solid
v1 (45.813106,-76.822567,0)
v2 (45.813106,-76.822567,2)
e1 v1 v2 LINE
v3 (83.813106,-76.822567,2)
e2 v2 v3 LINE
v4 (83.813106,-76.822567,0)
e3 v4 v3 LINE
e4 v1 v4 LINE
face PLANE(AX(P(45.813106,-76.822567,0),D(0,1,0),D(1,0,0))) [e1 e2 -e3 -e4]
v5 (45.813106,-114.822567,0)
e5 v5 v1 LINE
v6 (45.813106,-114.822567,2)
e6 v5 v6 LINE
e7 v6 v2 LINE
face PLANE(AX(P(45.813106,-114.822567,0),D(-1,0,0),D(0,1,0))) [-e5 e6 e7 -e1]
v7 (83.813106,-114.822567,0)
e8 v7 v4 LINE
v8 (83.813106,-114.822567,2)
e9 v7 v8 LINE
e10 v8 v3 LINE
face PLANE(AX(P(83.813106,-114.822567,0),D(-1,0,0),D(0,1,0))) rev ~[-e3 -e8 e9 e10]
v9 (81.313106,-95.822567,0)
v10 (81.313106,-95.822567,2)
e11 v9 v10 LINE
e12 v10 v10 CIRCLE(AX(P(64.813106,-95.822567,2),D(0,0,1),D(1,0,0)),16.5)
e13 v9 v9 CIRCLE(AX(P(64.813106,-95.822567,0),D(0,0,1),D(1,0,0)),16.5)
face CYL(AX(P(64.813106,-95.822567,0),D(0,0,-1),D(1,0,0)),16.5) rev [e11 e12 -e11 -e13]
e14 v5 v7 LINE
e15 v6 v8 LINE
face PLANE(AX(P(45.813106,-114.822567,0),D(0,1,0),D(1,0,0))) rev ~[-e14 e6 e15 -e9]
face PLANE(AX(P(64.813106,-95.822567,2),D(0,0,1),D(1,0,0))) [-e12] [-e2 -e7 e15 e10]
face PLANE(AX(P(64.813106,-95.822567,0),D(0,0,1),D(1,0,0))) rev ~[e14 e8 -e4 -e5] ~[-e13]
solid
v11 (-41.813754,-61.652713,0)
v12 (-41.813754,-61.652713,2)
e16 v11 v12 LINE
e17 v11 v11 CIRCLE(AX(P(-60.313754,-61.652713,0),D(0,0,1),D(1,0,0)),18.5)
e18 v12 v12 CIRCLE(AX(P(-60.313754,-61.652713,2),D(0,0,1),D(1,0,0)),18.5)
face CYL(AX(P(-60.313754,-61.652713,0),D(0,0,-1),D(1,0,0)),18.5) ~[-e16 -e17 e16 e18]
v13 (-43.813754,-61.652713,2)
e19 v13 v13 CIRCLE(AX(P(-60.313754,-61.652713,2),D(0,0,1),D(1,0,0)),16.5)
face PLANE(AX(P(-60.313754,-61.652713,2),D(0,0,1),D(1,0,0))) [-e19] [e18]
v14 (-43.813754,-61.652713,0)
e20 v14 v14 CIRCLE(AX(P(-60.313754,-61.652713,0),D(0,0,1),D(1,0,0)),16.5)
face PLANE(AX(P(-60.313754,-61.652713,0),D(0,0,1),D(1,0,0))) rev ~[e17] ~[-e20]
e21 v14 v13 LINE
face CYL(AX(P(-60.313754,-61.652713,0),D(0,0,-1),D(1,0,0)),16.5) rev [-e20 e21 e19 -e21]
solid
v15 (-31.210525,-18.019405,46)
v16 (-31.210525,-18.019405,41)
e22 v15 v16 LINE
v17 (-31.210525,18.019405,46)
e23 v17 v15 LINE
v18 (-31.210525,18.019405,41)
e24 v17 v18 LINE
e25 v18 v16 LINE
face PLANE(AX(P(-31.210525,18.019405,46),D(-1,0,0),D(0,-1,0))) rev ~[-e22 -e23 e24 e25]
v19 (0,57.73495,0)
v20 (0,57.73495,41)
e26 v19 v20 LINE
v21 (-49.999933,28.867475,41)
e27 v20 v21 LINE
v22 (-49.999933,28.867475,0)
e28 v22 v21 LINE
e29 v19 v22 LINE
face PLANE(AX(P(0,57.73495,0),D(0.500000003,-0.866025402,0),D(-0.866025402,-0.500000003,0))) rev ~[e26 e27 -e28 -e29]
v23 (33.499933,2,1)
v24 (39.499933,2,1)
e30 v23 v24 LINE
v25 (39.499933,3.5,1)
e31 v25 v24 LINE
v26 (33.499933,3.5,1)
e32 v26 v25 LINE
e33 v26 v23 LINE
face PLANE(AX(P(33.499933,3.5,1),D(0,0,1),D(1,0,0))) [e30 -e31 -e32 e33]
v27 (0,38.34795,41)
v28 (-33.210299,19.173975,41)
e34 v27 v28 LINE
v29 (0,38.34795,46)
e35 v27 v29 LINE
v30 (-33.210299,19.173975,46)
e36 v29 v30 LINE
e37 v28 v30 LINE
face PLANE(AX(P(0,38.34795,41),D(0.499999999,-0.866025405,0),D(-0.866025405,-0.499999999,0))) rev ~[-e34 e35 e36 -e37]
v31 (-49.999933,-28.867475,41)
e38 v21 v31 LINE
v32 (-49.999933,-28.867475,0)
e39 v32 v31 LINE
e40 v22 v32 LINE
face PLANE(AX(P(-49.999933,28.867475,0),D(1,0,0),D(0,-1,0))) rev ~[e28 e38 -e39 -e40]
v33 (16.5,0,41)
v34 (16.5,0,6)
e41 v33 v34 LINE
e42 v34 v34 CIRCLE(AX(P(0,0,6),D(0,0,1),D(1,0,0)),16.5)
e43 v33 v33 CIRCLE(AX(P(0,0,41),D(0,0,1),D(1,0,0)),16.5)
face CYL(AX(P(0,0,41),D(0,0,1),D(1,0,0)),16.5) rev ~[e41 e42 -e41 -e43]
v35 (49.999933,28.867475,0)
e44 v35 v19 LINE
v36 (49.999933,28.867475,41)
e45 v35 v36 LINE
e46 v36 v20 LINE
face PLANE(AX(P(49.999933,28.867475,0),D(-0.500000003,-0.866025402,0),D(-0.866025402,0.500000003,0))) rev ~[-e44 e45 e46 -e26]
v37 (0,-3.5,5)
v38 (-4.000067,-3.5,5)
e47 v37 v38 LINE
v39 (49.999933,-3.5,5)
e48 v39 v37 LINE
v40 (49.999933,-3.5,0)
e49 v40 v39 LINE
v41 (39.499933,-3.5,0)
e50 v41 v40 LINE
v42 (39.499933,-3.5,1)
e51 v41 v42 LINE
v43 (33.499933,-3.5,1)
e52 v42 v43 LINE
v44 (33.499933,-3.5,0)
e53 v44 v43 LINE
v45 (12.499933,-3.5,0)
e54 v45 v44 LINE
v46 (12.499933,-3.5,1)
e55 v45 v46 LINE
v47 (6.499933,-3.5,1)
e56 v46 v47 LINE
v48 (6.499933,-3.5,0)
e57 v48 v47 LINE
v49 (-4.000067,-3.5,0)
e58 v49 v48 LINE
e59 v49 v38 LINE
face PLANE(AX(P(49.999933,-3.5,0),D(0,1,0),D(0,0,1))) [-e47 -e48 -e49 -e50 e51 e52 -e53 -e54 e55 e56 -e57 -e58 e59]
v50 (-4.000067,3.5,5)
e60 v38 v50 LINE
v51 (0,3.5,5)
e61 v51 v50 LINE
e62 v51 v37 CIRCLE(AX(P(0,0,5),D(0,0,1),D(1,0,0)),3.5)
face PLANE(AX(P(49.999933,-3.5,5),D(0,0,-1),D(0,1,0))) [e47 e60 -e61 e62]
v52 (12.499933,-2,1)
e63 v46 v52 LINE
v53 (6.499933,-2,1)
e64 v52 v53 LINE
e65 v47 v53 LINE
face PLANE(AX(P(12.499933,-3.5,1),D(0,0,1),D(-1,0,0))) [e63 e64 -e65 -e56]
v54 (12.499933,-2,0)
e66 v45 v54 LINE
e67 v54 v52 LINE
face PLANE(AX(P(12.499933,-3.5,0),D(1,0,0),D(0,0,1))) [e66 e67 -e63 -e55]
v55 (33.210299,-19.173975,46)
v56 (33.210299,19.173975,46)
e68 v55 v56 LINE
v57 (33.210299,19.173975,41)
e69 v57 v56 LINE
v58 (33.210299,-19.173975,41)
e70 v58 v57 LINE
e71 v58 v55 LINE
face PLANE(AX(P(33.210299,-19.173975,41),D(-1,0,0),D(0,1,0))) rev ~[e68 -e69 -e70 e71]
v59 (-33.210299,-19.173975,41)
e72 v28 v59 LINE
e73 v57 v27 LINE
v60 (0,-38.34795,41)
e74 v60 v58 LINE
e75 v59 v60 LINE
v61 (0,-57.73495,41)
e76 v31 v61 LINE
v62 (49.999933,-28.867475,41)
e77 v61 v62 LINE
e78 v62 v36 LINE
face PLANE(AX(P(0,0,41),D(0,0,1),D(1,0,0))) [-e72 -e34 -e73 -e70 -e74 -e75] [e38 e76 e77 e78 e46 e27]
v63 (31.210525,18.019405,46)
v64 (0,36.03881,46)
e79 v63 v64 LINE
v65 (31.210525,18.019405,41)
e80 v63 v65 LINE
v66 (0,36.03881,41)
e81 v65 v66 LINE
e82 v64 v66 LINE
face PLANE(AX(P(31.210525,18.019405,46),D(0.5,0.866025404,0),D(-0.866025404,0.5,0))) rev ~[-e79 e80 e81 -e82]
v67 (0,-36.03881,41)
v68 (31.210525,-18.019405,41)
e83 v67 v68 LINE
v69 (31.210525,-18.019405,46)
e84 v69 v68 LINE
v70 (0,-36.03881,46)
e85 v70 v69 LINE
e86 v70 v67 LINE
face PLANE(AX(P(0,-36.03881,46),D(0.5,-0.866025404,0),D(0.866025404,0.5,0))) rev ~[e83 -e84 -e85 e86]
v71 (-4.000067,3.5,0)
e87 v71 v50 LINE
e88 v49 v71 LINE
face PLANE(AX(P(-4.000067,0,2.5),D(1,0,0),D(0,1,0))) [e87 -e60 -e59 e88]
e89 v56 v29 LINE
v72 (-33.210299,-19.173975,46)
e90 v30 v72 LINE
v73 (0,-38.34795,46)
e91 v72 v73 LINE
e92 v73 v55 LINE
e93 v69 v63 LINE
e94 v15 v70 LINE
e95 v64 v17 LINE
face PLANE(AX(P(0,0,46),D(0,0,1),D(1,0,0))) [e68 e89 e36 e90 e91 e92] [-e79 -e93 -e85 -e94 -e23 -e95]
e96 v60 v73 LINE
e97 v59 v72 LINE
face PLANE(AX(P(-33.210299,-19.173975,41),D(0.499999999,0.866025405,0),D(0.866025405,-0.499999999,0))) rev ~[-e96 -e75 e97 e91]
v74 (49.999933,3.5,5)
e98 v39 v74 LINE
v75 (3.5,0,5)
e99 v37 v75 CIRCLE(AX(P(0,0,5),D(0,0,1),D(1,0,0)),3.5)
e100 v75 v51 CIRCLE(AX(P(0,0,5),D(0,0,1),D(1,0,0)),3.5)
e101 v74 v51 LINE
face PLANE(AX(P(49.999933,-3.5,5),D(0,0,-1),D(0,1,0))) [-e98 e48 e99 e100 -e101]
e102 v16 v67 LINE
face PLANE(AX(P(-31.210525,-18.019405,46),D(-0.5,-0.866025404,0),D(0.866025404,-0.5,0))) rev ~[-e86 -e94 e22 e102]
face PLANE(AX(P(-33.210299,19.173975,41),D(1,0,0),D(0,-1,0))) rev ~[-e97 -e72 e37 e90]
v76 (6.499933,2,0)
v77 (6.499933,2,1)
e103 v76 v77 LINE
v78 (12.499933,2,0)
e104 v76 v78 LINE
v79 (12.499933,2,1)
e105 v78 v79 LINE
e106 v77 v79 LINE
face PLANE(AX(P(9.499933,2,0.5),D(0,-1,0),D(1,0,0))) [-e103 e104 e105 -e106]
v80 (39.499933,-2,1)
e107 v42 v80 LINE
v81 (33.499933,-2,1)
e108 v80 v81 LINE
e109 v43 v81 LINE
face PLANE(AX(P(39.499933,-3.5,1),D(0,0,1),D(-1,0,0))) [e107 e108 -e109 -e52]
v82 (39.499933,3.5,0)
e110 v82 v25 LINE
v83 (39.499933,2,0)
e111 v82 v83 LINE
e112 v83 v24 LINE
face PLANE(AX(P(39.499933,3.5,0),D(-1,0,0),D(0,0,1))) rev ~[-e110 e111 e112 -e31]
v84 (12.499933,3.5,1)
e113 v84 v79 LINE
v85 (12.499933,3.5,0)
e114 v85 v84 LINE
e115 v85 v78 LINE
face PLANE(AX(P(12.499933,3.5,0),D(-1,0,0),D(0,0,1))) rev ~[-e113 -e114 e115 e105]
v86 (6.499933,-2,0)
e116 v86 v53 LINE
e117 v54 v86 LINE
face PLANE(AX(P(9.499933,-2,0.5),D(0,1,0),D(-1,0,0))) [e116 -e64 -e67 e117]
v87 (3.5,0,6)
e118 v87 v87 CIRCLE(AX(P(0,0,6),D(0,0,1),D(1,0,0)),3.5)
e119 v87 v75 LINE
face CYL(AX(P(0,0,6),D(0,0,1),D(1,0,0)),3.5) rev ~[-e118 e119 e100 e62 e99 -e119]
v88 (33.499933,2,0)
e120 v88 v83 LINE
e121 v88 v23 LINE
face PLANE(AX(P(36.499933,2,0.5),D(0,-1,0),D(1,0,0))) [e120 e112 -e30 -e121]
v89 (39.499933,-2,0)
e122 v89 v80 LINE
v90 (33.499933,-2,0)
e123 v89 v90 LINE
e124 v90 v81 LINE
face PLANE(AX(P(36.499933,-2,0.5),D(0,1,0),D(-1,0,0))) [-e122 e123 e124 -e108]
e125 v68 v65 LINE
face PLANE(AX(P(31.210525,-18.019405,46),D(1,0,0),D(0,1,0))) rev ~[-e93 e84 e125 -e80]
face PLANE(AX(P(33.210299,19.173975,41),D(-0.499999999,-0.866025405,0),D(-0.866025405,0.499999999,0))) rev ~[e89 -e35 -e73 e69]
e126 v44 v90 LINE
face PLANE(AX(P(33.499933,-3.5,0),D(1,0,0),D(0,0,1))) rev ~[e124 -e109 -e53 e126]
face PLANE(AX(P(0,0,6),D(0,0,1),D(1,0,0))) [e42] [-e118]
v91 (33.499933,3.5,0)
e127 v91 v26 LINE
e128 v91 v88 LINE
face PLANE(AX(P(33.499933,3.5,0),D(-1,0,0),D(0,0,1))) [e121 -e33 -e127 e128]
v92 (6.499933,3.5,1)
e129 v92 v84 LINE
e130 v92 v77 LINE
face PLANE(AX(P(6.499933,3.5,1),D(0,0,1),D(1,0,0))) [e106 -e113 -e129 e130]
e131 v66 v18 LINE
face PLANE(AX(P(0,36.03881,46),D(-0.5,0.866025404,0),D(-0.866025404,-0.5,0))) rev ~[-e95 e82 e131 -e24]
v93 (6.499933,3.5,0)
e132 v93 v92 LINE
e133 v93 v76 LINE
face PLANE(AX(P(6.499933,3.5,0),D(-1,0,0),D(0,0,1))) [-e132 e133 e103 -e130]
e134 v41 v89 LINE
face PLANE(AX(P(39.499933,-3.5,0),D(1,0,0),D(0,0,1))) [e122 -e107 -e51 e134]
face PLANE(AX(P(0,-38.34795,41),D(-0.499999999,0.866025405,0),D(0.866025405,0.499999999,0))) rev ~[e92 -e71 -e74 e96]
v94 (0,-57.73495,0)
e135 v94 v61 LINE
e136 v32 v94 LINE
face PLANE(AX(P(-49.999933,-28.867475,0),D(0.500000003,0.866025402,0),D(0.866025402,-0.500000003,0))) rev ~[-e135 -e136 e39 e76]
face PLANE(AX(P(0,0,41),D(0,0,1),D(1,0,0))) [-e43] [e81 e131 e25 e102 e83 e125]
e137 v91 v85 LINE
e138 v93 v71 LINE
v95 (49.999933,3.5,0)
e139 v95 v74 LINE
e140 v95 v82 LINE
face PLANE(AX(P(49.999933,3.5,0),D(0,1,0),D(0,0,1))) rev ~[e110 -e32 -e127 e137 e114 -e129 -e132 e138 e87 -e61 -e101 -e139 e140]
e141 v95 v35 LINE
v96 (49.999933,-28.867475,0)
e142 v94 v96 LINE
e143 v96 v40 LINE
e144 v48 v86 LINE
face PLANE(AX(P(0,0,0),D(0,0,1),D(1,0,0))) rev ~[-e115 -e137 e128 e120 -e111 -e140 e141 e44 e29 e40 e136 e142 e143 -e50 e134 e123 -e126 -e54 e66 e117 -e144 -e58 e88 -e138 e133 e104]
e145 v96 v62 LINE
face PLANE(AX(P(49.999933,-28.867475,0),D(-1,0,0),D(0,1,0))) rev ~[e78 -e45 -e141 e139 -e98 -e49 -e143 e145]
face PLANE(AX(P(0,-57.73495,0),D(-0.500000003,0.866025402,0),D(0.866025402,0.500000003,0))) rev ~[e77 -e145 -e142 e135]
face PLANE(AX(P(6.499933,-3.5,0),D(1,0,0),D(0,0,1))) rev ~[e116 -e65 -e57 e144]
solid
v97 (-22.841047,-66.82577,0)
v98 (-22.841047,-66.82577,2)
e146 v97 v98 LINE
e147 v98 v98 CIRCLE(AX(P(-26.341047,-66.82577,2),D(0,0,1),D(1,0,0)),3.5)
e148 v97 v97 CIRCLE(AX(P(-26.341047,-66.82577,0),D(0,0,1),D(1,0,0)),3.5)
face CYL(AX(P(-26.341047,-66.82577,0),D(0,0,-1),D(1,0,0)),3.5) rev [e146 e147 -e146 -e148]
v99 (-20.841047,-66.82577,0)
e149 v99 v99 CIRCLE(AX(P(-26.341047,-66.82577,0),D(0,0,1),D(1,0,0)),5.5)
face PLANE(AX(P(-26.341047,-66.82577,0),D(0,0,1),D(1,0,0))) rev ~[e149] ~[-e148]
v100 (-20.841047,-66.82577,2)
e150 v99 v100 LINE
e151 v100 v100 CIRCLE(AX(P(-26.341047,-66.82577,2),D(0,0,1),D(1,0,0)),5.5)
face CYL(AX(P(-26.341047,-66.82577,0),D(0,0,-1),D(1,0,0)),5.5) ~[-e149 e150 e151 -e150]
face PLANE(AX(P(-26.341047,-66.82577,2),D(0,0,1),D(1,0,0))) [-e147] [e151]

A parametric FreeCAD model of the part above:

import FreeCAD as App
import Part
import Sketcher

V = App.Vector
Q = App.Units.Quantity


def add_polygon(sketch, points):
    """Adds a closed chain of lines whose ends are joined by coincident constraints."""
    first, n = sketch.GeometryCount, len(points)
    for a, b in zip(points, points[1:] + points[:1]):
        sketch.addGeometry(Part.LineSegment(App.Vector(*a, 0), App.Vector(*b, 0)), False)
    for i in range(n):
        sketch.addConstraint(Sketcher.Constraint("Coincident", first + i, 2, first + (i + 1) % n, 1))

doc = App.newDocument("Part")
body = doc.addObject("PartDesign::Body", "Body")

# Sketch on XY plane
sketch1 = body.newObject("Sketcher::SketchObject", "Sketch")
sketch1.AttachmentSupport = (doc.getObject("XY_Plane"), [""])
sketch1.MapMode = "FlatFace"
add_polygon(sketch1, [(50, 29), (0, 58), (-50, 29), (-50, -29), (0, -58), (50, -29)])  # lines 0-5
sketch1.addConstraint(Sketcher.Constraint("Vertical", 2))
sketch1.addConstraint(Sketcher.Constraint("Vertical", 5))
sketch1.addConstraint(Sketcher.Constraint("Symmetric", 0, 2, 3, 2, -1, 1))
sketch1.addConstraint(Sketcher.Constraint("Symmetric", 1, 2, 4, 2, -1, 1))
sketch1.addConstraint(Sketcher.Constraint("PointOnObject", 0, 2, -2))
sketch1.addConstraint(Sketcher.Constraint("Parallel", 0, 3))
sketch1.addConstraint(Sketcher.Constraint("Horizontal", 2, 2, 4, 2))
sketch1.addConstraint(Sketcher.Constraint("Angle", 0, Q("150 deg")))
sketch1.addConstraint(Sketcher.Constraint("DistanceY", 2, 2, 2, 1, 57.73495))
sketch1.addConstraint(Sketcher.Constraint("DistanceY", 3, 2, 0, 2, 115.4699))
pad1 = body.newObject("PartDesign::Pad", "Pad")
pad1.Profile = sketch1
pad1.Length = 41

# Sketch on XY plane
sketch2 = body.newObject("Sketcher::SketchObject", "Sketch001")
sketch2.AttachmentSupport = (doc.getObject("XY_Plane"), [""])
sketch2.MapMode = "FlatFace"
sketch2.AttachmentOffset = App.Placement(V(0, 0, 41), App.Rotation())
add_polygon(sketch2, [(33, 19), (0, 38), (-33, 19), (-33, -19), (0, -38), (33, -19)])  # lines 0-5
sketch2.addConstraint(Sketcher.Constraint("Vertical", 2))
sketch2.addConstraint(Sketcher.Constraint("Vertical", 5))
sketch2.addConstraint(Sketcher.Constraint("Symmetric", 0, 2, 3, 2, -1, 1))
sketch2.addConstraint(Sketcher.Constraint("Symmetric", 1, 2, 4, 2, -1, 1))
sketch2.addConstraint(Sketcher.Constraint("PointOnObject", 0, 2, -2))
sketch2.addConstraint(Sketcher.Constraint("Parallel", 0, 3))
sketch2.addConstraint(Sketcher.Constraint("Horizontal", 2, 2, 4, 2))
sketch2.addConstraint(Sketcher.Constraint("Angle", 0, Q("150 deg")))
sketch2.addConstraint(Sketcher.Constraint("DistanceY", 2, 2, 2, 1, 38.34795))
sketch2.addConstraint(Sketcher.Constraint("DistanceX", 1, 2, -1, 1, 33.210299))
pad2 = body.newObject("PartDesign::Pad", "Pad001")
pad2.Profile = sketch2
pad2.Length = 5

# Sketch on XY plane
sketch3 = body.newObject("Sketcher::SketchObject", "Sketch002")
sketch3.AttachmentSupport = (doc.getObject("XY_Plane"), [""])
sketch3.MapMode = "FlatFace"
sketch3.AttachmentOffset = App.Placement(V(0, 0, 46), App.Rotation())
add_polygon(sketch3, [(31, 18), (0, 36), (-31, 18), (-31, -18), (0, -36), (31, -18)])  # lines 0-5
sketch3.addConstraint(Sketcher.Constraint("Vertical", 2))
sketch3.addConstraint(Sketcher.Constraint("Vertical", 5))
sketch3.addConstraint(Sketcher.Constraint("Symmetric", 0, 2, 3, 2, -1, 1))
sketch3.addConstraint(Sketcher.Constraint("Symmetric", 1, 2, 4, 2, -1, 1))
sketch3.addConstraint(Sketcher.Constraint("PointOnObject", 0, 2, -2))
sketch3.addConstraint(Sketcher.Constraint("Parallel", 0, 3))
sketch3.addConstraint(Sketcher.Constraint("Horizontal", 2, 2, 4, 2))
sketch3.addConstraint(Sketcher.Constraint("Angle", 0, Q("150 deg")))
sketch3.addConstraint(Sketcher.Constraint("DistanceY", 2, 2, 2, 1, 36.03881))
sketch3.addConstraint(Sketcher.Constraint("Distance", 0, 36.03881))
pocket1 = body.newObject("PartDesign::Pocket", "Pocket")
pocket1.Profile = sketch3
pocket1.Length = 5

# Sketch on XY plane
sketch4 = body.newObject("Sketcher::SketchObject", "Sketch003")
sketch4.AttachmentSupport = (doc.getObject("XY_Plane"), [""])
sketch4.MapMode = "FlatFace"
sketch4.AttachmentOffset = App.Placement(V(0, 0, 41), App.Rotation())
sketch4.addGeometry(Part.Circle(V(0, 0, 0), V(0, 0, 1), 16), False)
sketch4.addConstraint(Sketcher.Constraint("Coincident", 0, 3, -1, 1))
sketch4.addConstraint(Sketcher.Constraint("Diameter", 0, 33.0))
pocket2 = body.newObject("PartDesign::Pocket", "Pocket001")
pocket2.Profile = sketch4
pocket2.Length = 35

# Sketch on XY plane
sketch5 = body.newObject("Sketcher::SketchObject", "Sketch004")
sketch5.AttachmentSupport = (doc.getObject("XY_Plane"), [""])
sketch5.MapMode = "FlatFace"
sketch5.AttachmentOffset = App.Placement(V(0, 0, 6), App.Rotation())
sketch5.addGeometry(Part.Circle(V(0, 0, 0), V(0, 0, 1), 3.5), False)
sketch5.addConstraint(Sketcher.Constraint("Coincident", 0, 3, -1, 1))
sketch5.addConstraint(Sketcher.Constraint("Diameter", 0, 7.0))
pocket3 = body.newObject("PartDesign::Pocket", "Pocket002")
pocket3.Profile = sketch5
pocket3.Length = 25

# Sketch on YZ plane
sketch6 = body.newObject("Sketcher::SketchObject", "Sketch005")
sketch6.AttachmentSupport = (doc.getObject("YZ_Plane"), [""])
sketch6.MapMode = "FlatFace"
sketch6.AttachmentOffset = App.Placement(V(0, 0, 49.999933), App.Rotation())
add_polygon(sketch6, [(-4, 5), (-4, 0), (4, 0), (4, 5)])  # lines 0-3
sketch6.addConstraint(Sketcher.Constraint("Vertical", 0))
sketch6.addConstraint(Sketcher.Constraint("Horizontal", 1))
sketch6.addConstraint(Sketcher.Constraint("Vertical", 2))
sketch6.addConstraint(Sketcher.Constraint("Horizontal", 3))
sketch6.addConstraint(Sketcher.Constraint("Symmetric", 0, 2, 1, 2, -1, 1))
sketch6.addConstraint(Sketcher.Constraint("DistanceX", 1, 1, 1, 2, 7.0))
sketch6.addConstraint(Sketcher.Constraint("DistanceY", 0, 2, 0, 1, 5.0))
pocket4 = body.newObject("PartDesign::Pocket", "Pocket003")
pocket4.Profile = sketch6
pocket4.Length = 54

# Sketch on XZ plane
sketch7 = body.newObject("Sketcher::SketchObject", "Sketch006")
sketch7.AttachmentSupport = (doc.getObject("XZ_Plane"), [""])
sketch7.MapMode = "FlatFace"
sketch7.AttachmentOffset = App.Placement(V(0, 0, 3.5), App.Rotation())
add_polygon(sketch7, [(12.5, 1), (12.5, 0), (6.5, 0), (6.5, 1)])  # lines 0-3
add_polygon(sketch7, [(39.5, 1), (39.5, 0), (33.5, 0), (33.5, 1)])  # lines 4-7
sketch7.addConstraint(Sketcher.Constraint("Vertical", 0))
sketch7.addConstraint(Sketcher.Constraint("Horizontal", 1))
sketch7.addConstraint(Sketcher.Constraint("Vertical", 2))
sketch7.addConstraint(Sketcher.Constraint("Horizontal", 3))
sketch7.addConstraint(Sketcher.Constraint("Vertical", 4))
sketch7.addConstraint(Sketcher.Constraint("Horizontal", 5))
sketch7.addConstraint(Sketcher.Constraint("Vertical", 6))
sketch7.addConstraint(Sketcher.Constraint("Horizontal", 7))
sketch7.addConstraint(Sketcher.Constraint("PointOnObject", 0, 2, -1))
sketch7.addConstraint(Sketcher.Constraint("PointOnObject", 4, 2, -1))
sketch7.addConstraint(Sketcher.Constraint("Horizontal", 3, 2, 6, 2))
sketch7.addConstraint(Sketcher.Constraint("Equal", 3, 5))
sketch7.addConstraint(Sketcher.Constraint("DistanceX", 1, 2, 1, 1, 6.0))
sketch7.addConstraint(Sketcher.Constraint("DistanceY", 0, 2, 0, 1, 1.0))
sketch7.addConstraint(Sketcher.Constraint("DistanceX", 0, 2, 4, 2, 27.0))
sketch7.addConstraint(Sketcher.Constraint("DistanceX", -1, 1, 0, 2, 12.499933))
pad3 = body.newObject("PartDesign::Pad", "Pad002")
pad3.Profile = sketch7
pad3.Length = 1.5
pad3.Reversed = True

# Sketch on XZ plane
sketch8 = body.newObject("Sketcher::SketchObject", "Sketch007")
sketch8.AttachmentSupport = (doc.getObject("XZ_Plane"), [""])
sketch8.MapMode = "FlatFace"
sketch8.AttachmentOffset = App.Placement(V(0, 0, -3.5), App.Rotation())
add_polygon(sketch8, [(33.5, 1), (33.5, 0), (39.5, 0), (39.5, 1)])  # lines 0-3
add_polygon(sketch8, [(6.5, 1), (6.5, 0), (12.5, 0), (12.5, 1)])  # lines 4-7
sketch8.addConstraint(Sketcher.Constraint("Vertical", 0))
sketch8.addConstraint(Sketcher.Constraint("Horizontal", 1))
sketch8.addConstraint(Sketcher.Constraint("Vertical", 2))
sketch8.addConstraint(Sketcher.Constraint("Horizontal", 3))
sketch8.addConstraint(Sketcher.Constraint("Vertical", 4))
sketch8.addConstraint(Sketcher.Constraint("Horizontal", 5))
sketch8.addConstraint(Sketcher.Constraint("Vertical", 6))
sketch8.addConstraint(Sketcher.Constraint("Horizontal", 7))
sketch8.addConstraint(Sketcher.Constraint("PointOnObject", 0, 2, -1))
sketch8.addConstraint(Sketcher.Constraint("PointOnObject", 4, 2, -1))
sketch8.addConstraint(Sketcher.Constraint("Horizontal", 3, 2, 6, 2))
sketch8.addConstraint(Sketcher.Constraint("Equal", 3, 5))
sketch8.addConstraint(Sketcher.Constraint("DistanceX", 1, 1, 1, 2, 6.0))
sketch8.addConstraint(Sketcher.Constraint("DistanceY", 0, 2, 0, 1, 1.0))
sketch8.addConstraint(Sketcher.Constraint("DistanceX", 4, 2, 0, 2, 27.0))
sketch8.addConstraint(Sketcher.Constraint("DistanceX", -1, 1, 0, 2, 33.499933))
pad4 = body.newObject("PartDesign::Pad", "Pad003")
pad4.Profile = sketch8
pad4.Length = 1.5
body2 = doc.addObject("PartDesign::Body", "Body001")

# Sketch on XY plane
sketch9 = body2.newObject("Sketcher::SketchObject", "Sketch008")
sketch9.AttachmentSupport = (doc.getObject("XY_Plane001"), [""])
sketch9.MapMode = "FlatFace"
sketch9.addGeometry(Part.Circle(V(-60, -62, 0), V(0, 0, 1), 18), False)
sketch9.addGeometry(Part.Circle(V(-60, -62, 0), V(0, 0, 1), 16), False)
sketch9.addConstraint(Sketcher.Constraint("Coincident", 1, 3, 0, 3))
sketch9.addConstraint(Sketcher.Constraint("Diameter", 0, 37.0))
sketch9.addConstraint(Sketcher.Constraint("Diameter", 1, 33.0))
sketch9.addConstraint(Sketcher.Constraint("DistanceX", 0, 3, -1, 1, 60.313754))
sketch9.addConstraint(Sketcher.Constraint("DistanceY", 0, 3, -1, 1, 61.652713))
pad5 = body2.newObject("PartDesign::Pad", "Pad004")
pad5.Profile = sketch9
pad5.Length = 2
body3 = doc.addObject("PartDesign::Body", "Body002")

# Sketch on XY plane
sketch10 = body3.newObject("Sketcher::SketchObject", "Sketch009")
sketch10.AttachmentSupport = (doc.getObject("XY_Plane002"), [""])
sketch10.MapMode = "FlatFace"
sketch10.addGeometry(Part.Circle(V(-26.3, -66.8, 0), V(0, 0, 1), 5.5), False)
sketch10.addGeometry(Part.Circle(V(-26.3, -66.8, 0), V(0, 0, 1), 3.5), False)
sketch10.addConstraint(Sketcher.Constraint("Coincident", 1, 3, 0, 3))
sketch10.addConstraint(Sketcher.Constraint("Diameter", 0, 11.0))
sketch10.addConstraint(Sketcher.Constraint("Diameter", 1, 7.0))
sketch10.addConstraint(Sketcher.Constraint("DistanceY", 0, 3, -1, 1, 66.82577))
sketch10.addConstraint(Sketcher.Constraint("DistanceX", 0, 3, -1, 1, 26.341047))
pad6 = body3.newObject("PartDesign::Pad", "Pad005")
pad6.Profile = sketch10
pad6.Length = 2
body4 = doc.addObject("PartDesign::Body", "Body003")

# Sketch on XY plane
sketch11 = body4.newObject("Sketcher::SketchObject", "Sketch010")
sketch11.AttachmentSupport = (doc.getObject("XY_Plane003"), [""])
sketch11.MapMode = "FlatFace"
add_polygon(sketch11, [(46, -77), (46, -115), (84, -115), (84, -77)])  # lines 0-3
sketch11.addGeometry(Part.Circle(V(65, -96, 0), V(0, 0, 1), 16), False)  # 4
sketch11.addConstraint(Sketcher.Constraint("Vertical", 0))
sketch11.addConstraint(Sketcher.Constraint("Horizontal", 1))
sketch11.addConstraint(Sketcher.Constraint("Vertical", 2))
sketch11.addConstraint(Sketcher.Constraint("Horizontal", 3))
sketch11.addConstraint(Sketcher.Constraint("Equal", 3, 0))
sketch11.addConstraint(Sketcher.Constraint("Diameter", 4, 33.0))
sketch11.addConstraint(Sketcher.Constraint("DistanceX", 1, 1, 1, 2, 38.0))
sketch11.addConstraint(Sketcher.Constraint("DistanceX", 0, 2, 4, 3, 19.0))
sketch11.addConstraint(Sketcher.Constraint("DistanceY", 0, 2, 4, 3, 19.0))
sketch11.addConstraint(Sketcher.Constraint("DistanceX", -1, 1, 4, 3, 64.813106))
sketch11.addConstraint(Sketcher.Constraint("DistanceY", 4, 3, -1, 1, 95.822567))
pad7 = body4.newObject("PartDesign::Pad", "Pad006")
pad7.Profile = sketch11
pad7.Length = 2

doc.recompute()
